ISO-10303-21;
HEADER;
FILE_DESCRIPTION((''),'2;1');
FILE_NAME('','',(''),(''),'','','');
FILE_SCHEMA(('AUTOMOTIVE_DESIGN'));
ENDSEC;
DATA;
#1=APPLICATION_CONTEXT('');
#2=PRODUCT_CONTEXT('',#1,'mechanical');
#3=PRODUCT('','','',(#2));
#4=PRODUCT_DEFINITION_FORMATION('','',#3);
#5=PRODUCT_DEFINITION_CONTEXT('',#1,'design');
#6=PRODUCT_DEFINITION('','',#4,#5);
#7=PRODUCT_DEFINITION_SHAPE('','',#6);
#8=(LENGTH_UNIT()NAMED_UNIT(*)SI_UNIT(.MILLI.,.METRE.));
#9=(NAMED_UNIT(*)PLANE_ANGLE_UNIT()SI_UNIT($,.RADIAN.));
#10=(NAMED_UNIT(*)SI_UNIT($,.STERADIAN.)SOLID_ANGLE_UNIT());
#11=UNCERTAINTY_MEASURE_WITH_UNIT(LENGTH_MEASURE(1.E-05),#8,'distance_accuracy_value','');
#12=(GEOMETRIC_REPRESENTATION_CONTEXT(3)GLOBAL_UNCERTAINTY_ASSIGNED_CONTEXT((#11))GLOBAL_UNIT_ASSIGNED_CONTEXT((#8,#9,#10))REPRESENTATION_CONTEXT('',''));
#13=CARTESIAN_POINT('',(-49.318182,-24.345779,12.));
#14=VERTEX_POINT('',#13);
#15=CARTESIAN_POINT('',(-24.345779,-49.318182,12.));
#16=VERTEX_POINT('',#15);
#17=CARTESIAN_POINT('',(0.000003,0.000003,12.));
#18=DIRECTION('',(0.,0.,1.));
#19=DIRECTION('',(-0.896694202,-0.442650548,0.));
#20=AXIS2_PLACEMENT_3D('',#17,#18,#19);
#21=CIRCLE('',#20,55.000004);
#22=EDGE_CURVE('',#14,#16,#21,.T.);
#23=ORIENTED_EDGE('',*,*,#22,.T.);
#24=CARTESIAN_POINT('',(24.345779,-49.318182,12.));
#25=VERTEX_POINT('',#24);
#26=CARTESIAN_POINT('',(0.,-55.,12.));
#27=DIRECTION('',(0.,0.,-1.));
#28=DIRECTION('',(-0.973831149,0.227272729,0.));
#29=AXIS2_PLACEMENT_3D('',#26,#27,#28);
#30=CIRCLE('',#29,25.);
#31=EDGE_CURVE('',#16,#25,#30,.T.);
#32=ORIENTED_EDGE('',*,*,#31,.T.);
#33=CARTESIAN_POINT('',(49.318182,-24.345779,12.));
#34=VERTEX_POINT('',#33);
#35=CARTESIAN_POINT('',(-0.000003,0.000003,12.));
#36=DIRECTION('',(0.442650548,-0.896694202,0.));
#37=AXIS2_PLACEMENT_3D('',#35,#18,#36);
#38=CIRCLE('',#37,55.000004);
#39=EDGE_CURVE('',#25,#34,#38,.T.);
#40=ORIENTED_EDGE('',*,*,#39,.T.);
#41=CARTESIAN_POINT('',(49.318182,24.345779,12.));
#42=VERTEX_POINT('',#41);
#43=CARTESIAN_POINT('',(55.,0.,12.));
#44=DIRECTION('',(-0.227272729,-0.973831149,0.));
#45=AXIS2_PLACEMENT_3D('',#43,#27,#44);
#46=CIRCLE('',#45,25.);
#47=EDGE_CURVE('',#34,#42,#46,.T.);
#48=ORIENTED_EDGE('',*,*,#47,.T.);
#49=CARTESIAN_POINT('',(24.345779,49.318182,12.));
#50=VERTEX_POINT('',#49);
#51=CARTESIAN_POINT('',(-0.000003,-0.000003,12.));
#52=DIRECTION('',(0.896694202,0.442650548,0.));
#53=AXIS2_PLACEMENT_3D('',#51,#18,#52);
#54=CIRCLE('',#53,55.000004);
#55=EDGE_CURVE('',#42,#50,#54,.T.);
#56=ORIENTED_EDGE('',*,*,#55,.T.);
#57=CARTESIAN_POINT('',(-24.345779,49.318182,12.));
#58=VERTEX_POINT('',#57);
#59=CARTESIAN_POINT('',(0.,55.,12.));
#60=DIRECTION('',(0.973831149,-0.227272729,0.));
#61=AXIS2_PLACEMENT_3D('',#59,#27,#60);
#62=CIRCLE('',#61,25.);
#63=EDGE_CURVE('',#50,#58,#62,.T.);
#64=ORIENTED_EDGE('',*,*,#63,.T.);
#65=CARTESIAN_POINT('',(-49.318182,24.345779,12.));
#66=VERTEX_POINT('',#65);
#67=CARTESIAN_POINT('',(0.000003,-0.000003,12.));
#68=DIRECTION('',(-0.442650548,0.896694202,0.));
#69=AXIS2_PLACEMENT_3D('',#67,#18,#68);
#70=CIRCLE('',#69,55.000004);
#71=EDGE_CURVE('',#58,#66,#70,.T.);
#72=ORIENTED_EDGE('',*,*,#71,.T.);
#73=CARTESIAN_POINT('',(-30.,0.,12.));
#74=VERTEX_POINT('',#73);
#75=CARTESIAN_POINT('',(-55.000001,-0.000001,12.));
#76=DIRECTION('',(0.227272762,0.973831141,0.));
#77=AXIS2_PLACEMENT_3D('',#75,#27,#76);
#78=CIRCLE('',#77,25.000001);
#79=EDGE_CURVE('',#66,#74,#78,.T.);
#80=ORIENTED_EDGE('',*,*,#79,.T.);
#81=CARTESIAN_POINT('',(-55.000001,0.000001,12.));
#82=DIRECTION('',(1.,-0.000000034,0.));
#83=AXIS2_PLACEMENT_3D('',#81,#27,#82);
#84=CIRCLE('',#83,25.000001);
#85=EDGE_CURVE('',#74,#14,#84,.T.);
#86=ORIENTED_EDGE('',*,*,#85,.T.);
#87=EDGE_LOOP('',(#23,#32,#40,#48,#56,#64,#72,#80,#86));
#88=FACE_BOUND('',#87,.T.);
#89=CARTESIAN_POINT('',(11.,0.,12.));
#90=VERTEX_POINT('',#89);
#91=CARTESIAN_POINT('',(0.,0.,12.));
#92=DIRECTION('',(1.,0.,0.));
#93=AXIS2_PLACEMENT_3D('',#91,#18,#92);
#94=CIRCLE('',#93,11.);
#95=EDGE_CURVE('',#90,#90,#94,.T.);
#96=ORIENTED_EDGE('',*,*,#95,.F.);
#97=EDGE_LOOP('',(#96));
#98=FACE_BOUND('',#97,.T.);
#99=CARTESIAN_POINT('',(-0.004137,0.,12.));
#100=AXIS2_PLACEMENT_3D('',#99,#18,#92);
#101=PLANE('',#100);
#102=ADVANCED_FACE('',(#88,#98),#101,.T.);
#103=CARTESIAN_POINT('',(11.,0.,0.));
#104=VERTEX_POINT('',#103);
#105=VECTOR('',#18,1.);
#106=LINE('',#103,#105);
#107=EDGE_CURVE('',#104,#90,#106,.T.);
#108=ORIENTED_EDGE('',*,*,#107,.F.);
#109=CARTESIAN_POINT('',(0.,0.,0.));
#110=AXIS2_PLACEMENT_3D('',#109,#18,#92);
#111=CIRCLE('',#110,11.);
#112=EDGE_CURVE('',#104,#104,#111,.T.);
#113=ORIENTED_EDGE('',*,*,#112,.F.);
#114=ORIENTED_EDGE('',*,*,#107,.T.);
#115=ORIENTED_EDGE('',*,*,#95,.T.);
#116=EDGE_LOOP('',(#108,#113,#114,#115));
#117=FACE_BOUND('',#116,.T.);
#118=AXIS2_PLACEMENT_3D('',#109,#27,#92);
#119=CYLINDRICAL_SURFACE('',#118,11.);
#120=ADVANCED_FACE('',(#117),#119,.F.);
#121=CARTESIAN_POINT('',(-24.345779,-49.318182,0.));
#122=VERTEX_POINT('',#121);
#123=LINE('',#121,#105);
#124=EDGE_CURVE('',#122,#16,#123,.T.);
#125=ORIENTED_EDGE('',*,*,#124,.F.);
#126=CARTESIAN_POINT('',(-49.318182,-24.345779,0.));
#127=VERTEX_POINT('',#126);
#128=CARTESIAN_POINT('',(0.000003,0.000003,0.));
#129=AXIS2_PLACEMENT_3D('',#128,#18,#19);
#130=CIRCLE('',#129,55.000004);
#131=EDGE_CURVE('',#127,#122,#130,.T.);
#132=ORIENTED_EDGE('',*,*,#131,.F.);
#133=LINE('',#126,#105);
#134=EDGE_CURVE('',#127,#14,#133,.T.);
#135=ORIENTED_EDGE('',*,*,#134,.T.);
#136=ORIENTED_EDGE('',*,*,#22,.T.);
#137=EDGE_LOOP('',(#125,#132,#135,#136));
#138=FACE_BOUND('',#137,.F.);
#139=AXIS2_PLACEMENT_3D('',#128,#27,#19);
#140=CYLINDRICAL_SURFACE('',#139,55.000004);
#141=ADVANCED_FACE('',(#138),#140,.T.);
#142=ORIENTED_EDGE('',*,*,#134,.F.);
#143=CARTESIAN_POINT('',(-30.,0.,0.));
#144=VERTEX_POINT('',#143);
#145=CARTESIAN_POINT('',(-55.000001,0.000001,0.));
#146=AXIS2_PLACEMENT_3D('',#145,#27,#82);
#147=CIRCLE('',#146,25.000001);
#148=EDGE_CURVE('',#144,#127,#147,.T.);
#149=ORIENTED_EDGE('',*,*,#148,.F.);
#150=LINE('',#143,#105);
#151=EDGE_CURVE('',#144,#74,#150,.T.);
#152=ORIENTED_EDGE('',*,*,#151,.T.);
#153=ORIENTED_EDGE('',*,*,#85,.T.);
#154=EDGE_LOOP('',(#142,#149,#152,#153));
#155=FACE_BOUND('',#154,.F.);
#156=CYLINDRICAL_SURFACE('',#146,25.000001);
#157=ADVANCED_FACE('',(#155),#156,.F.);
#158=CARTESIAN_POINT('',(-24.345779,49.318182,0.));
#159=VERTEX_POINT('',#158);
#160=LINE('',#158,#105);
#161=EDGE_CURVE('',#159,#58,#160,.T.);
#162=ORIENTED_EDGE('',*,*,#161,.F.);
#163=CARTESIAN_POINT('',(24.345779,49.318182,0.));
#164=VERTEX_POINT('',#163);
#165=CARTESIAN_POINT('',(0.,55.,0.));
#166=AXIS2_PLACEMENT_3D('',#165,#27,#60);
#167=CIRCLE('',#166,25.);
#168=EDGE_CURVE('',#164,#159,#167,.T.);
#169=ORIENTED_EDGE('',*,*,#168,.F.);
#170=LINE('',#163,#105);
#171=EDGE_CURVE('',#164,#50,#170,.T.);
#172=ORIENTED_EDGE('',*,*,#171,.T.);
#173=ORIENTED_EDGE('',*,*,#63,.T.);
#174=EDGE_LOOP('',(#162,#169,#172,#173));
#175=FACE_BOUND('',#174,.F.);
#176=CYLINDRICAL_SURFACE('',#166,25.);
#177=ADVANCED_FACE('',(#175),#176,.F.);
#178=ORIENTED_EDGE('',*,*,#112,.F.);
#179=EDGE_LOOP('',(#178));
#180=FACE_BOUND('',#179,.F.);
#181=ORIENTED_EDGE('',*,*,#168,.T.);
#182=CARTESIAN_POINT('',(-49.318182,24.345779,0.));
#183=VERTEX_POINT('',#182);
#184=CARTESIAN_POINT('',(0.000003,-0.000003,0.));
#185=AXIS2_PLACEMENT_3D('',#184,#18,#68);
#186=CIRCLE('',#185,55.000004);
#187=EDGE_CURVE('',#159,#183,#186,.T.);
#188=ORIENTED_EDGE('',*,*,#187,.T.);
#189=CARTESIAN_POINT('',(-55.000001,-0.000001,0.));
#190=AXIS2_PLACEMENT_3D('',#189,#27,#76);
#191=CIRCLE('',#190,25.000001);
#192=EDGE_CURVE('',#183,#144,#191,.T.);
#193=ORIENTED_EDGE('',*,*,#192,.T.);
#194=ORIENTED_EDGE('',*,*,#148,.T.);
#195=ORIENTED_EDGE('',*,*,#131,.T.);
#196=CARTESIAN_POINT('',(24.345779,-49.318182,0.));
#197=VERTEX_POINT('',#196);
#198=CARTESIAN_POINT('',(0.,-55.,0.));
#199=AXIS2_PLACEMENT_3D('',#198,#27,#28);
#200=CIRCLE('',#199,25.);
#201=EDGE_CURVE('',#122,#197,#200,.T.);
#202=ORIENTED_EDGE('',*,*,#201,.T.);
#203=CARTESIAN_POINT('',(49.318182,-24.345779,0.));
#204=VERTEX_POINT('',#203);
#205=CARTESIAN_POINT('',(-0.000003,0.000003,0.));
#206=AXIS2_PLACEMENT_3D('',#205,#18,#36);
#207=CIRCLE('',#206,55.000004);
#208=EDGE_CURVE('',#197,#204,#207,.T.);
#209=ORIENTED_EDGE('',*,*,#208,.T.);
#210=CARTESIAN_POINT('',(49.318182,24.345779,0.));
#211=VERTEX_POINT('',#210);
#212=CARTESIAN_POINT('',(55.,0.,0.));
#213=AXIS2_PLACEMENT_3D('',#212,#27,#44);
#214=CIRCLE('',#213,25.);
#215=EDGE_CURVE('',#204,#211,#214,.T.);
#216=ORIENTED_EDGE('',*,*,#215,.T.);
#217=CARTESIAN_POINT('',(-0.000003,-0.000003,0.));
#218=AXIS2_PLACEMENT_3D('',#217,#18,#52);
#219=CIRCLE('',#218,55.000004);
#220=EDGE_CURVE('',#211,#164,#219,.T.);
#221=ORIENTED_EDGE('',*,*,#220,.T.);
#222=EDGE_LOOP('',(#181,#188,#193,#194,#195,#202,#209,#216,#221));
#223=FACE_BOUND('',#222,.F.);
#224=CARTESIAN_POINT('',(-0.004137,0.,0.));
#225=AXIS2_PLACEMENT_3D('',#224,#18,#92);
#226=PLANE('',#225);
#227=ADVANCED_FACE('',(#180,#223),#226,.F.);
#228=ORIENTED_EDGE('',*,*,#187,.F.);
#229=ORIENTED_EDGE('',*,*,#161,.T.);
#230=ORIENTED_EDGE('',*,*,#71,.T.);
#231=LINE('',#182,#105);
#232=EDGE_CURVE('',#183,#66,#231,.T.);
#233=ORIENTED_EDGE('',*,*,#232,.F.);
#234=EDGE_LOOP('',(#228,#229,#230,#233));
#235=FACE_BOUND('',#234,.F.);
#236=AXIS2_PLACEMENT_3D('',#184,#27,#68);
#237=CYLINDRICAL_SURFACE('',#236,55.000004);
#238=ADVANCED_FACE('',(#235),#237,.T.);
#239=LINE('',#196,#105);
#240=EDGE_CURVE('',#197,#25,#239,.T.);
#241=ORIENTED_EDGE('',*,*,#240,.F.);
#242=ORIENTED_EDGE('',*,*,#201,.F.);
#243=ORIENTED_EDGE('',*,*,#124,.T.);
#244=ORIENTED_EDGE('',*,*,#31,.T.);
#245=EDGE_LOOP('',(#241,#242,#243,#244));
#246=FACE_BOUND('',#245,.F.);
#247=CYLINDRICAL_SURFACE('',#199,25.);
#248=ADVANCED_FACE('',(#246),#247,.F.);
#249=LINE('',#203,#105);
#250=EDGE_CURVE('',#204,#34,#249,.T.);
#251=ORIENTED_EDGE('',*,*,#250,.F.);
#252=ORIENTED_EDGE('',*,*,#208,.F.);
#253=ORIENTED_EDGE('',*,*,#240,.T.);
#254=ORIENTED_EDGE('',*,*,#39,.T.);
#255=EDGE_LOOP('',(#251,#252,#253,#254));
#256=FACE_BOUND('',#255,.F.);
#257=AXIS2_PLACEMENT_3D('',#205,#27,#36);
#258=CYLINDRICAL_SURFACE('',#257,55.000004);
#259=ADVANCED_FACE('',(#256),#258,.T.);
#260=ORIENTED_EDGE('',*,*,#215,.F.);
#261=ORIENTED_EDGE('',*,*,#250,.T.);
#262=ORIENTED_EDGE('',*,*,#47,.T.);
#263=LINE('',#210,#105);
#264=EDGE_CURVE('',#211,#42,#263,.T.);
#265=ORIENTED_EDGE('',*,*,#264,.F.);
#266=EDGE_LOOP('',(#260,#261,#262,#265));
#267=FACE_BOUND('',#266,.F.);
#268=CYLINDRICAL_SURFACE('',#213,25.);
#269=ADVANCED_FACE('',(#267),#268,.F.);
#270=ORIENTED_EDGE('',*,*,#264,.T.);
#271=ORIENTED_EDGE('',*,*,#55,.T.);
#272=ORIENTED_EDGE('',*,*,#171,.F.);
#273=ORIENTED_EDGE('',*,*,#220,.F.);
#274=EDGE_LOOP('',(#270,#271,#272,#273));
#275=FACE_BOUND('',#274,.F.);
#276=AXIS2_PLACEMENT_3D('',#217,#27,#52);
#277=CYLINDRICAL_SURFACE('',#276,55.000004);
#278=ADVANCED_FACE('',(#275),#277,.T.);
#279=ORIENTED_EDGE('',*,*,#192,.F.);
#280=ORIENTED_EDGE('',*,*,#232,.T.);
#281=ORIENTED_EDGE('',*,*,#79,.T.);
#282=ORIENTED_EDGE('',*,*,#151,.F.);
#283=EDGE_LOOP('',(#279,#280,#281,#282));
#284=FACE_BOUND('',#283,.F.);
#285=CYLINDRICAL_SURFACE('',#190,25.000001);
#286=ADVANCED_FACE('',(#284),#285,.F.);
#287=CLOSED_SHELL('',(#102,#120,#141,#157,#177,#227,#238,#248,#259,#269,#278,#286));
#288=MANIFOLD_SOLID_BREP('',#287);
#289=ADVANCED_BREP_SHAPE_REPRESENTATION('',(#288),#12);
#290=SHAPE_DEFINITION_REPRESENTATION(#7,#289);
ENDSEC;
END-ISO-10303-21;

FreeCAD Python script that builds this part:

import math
import FreeCAD as App
import Part
import Sketcher
Q = App.Units.Quantity

doc = App.newDocument("Part")
body = doc.addObject("PartDesign::Body", "Body")

# Sketch on XY plane
sketch1 = doc.addObject("Sketcher::SketchObject", "Sketch")
body.addObject(sketch1)
sketch1.AttachmentSupport = (doc.XY_Plane, [""])
sketch1.MapMode = "FlatFace"
sketch1.addGeometry([
    Part.ArcOfCircle(Part.Circle(App.Vector(55, 0, 0), App.Vector(0, 0, 1), 25), math.radians(103), math.radians(257)),  # 0
    Part.ArcOfCircle(Part.Circle(App.Vector(0, 0, 0), App.Vector(0, 0, 1), 55), math.radians(26), math.radians(64)),  # 1
    Part.ArcOfCircle(Part.Circle(App.Vector(0, 55, 0), App.Vector(0, 0, 1), 25), math.radians(-167), math.radians(-13)),  # 2
    Part.ArcOfCircle(Part.Circle(App.Vector(0, 0, 0), App.Vector(0, 0, 1), 55), math.radians(116), math.radians(154)),  # 3
    Part.ArcOfCircle(Part.Circle(App.Vector(-55, 0, 0), App.Vector(0, 0, 1), 25), math.radians(0), math.radians(77)),  # 4
    Part.ArcOfCircle(Part.Circle(App.Vector(-55, 0, 0), App.Vector(0, 0, 1), 25), math.radians(-77), math.radians(0)),  # 5
    Part.ArcOfCircle(Part.Circle(App.Vector(0, 0, 0), App.Vector(0, 0, 1), 55), math.radians(-154), math.radians(-116)),  # 6
    Part.ArcOfCircle(Part.Circle(App.Vector(0, -55, 0), App.Vector(0, 0, 1), 25), math.radians(13), math.radians(167)),  # 7
    Part.ArcOfCircle(Part.Circle(App.Vector(0, 0, 0), App.Vector(0, 0, 1), 55), math.radians(-64), math.radians(-26)),  # 8
    Part.Circle(App.Vector(0, 0, 0), App.Vector(0, 0, 1), 11),  # 9
], False)
sketch1.addConstraint([
    Sketcher.Constraint("Coincident", 0, 1, 1, 1),
    Sketcher.Constraint("Coincident", 1, 2, 2, 2),
    Sketcher.Constraint("Coincident", 2, 1, 3, 1),
    Sketcher.Constraint("Coincident", 3, 2, 4, 2),
    Sketcher.Constraint("Tangent", 4, 1, 5, 2),
    Sketcher.Constraint("Coincident", 5, 1, 6, 1),
    Sketcher.Constraint("Coincident", 6, 2, 7, 2),
    Sketcher.Constraint("Coincident", 7, 1, 8, 1),
    Sketcher.Constraint("Coincident", 8, 2, 0, 2),
    Sketcher.Constraint("Coincident", 1, 3, -1, 1),
    Sketcher.Constraint("Coincident", 3, 3, -1, 1),
    Sketcher.Constraint("Coincident", 6, 3, -1, 1),
    Sketcher.Constraint("Coincident", 8, 3, -1, 1),
    Sketcher.Constraint("Coincident", 9, 3, -1, 1),
    Sketcher.Constraint("Equal", 0, 2),
    Sketcher.Constraint("Equal", 1, 3),
    Sketcher.Constraint("Equal", 2, 4),
    Sketcher.Constraint("Equal", 4, 5),
    Sketcher.Constraint("Equal", 3, 6),
    Sketcher.Constraint("Equal", 5, 7),
    Sketcher.Constraint("Equal", 6, 8),
    Sketcher.Constraint("Symmetric", 0, 3, 4, 3, -1, 1),
    Sketcher.Constraint("Symmetric", 2, 3, 7, 3, -1, 1),
    Sketcher.Constraint("PointOnObject", 0, 3, -1),
    Sketcher.Constraint("PointOnObject", 2, 3, -2),
    Sketcher.Constraint("PointOnObject", 4, 1, -1),
    Sketcher.Constraint("Diameter", 9, Q("22 mm")),
    Sketcher.Constraint("Radius", 0, Q("25 mm")),
    Sketcher.Constraint("DistanceX", -1, 1, 0, 3, Q("55 mm")),
    Sketcher.Constraint("DistanceY", -1, 1, 2, 3, Q("55 mm")),
    Sketcher.Constraint("Radius", 1, Q("55.000004 mm")),
])
pad1 = doc.addObject("PartDesign::Pad", "Pad")
body.addObject(pad1)
pad1.Profile = sketch1
pad1.Length = 12

doc.recompute()
